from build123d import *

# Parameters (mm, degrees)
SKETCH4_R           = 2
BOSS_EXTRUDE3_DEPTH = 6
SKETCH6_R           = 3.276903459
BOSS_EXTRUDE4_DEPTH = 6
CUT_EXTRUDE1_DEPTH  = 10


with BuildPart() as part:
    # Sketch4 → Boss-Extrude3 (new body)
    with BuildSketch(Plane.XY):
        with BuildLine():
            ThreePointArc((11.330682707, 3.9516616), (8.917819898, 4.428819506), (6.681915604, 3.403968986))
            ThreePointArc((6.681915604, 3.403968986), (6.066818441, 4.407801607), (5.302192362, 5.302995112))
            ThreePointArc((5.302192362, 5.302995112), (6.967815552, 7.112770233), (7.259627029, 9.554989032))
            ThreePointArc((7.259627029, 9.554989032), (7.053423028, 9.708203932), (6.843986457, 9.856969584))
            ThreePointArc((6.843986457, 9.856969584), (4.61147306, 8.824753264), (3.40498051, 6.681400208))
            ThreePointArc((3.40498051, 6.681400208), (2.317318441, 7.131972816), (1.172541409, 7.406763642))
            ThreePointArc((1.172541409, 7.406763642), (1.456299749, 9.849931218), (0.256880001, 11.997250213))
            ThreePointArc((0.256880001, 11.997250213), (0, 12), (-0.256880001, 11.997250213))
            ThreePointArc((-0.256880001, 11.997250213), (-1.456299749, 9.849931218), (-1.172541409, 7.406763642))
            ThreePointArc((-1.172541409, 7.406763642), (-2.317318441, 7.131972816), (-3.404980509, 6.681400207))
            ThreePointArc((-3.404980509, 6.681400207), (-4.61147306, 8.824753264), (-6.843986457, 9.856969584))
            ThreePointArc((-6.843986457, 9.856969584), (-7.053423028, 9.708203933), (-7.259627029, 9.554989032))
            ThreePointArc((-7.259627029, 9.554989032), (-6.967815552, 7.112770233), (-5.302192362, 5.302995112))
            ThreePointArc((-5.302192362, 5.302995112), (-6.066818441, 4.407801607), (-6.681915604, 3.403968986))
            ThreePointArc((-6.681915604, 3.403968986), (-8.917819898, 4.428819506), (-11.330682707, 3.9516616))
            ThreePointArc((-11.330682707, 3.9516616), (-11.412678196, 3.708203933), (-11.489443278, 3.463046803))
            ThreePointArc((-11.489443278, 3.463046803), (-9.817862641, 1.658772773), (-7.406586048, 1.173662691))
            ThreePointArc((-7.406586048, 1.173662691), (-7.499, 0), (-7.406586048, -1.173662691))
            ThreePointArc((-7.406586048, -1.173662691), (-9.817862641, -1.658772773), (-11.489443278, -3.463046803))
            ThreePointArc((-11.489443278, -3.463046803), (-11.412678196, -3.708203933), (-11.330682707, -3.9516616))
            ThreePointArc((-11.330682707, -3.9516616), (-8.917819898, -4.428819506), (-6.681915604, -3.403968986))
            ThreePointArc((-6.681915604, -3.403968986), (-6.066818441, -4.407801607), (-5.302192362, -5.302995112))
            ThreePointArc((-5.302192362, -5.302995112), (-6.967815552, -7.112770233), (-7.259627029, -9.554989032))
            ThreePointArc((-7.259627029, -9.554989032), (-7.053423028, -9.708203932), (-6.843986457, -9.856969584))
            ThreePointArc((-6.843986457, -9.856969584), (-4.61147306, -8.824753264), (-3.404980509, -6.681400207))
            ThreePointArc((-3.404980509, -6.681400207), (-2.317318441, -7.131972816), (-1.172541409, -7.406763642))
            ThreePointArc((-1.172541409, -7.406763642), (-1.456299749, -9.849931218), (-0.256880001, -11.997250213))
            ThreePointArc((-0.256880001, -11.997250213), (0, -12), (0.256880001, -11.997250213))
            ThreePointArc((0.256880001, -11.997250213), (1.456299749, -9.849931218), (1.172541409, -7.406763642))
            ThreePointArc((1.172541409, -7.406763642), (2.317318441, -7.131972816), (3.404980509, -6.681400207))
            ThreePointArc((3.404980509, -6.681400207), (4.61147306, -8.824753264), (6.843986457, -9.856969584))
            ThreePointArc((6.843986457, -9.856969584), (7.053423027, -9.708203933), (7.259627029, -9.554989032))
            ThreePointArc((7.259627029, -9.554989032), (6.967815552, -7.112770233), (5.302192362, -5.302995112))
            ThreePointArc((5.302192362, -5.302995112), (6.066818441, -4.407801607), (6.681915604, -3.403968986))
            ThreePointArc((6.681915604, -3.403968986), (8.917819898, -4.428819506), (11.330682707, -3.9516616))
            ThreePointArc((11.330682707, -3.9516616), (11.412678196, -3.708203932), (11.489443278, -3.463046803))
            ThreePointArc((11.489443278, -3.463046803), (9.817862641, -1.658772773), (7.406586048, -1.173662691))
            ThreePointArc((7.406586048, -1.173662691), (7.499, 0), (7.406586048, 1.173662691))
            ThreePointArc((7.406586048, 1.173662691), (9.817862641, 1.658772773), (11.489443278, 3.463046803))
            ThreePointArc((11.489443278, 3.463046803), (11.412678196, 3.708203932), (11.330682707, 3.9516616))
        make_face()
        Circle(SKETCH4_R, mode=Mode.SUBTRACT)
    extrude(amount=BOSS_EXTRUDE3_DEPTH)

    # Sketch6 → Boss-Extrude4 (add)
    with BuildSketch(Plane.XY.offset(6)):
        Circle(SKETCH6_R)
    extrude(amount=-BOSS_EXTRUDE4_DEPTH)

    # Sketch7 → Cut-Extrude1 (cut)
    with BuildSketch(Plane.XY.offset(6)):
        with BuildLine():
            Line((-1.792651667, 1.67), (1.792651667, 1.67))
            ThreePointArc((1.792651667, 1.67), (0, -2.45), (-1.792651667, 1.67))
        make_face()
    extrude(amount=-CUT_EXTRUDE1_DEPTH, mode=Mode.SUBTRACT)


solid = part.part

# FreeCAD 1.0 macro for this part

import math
import FreeCAD as App
import Part
import Sketcher

V = App.Vector

doc = App.newDocument("Part")
body = doc.addObject("PartDesign::Body", "Body")

# Sketch on XY plane
sketch1 = doc.addObject("Sketcher::SketchObject", "Sketch")
body.addObject(sketch1)
sketch1.AttachmentSupport = (doc.XY_Plane, [""])
sketch1.MapMode = "FlatFace"
sketch1.addGeometry(Part.ArcOfCircle(Part.Circle(V(9.4, 0.5, 0), V(0, 0, 1), 4), math.radians(61), math.radians(133)), False)
sketch1.addGeometry(Part.ArcOfCircle(Part.Circle(V(0, 0, 0), V(0, 0, 1), 7.5), math.radians(27), math.radians(45)), False)
sketch1.addGeometry(Part.ArcOfCircle(Part.Circle(V(3.3, 8.8, 0), V(0, 0, 1), 4), math.radians(-61), math.radians(11)), False)
sketch1.addGeometry(Part.ArcOfCircle(Part.Circle(V(0, 0, 0), V(0, 0, 1), 12), math.radians(52.77), math.radians(55.23)), False)
sketch1.addGeometry(Part.ArcOfCircle(Part.Circle(V(7.3, 5.9, 0), V(0, 0, 1), 4), math.radians(97), math.radians(169)), False)
sketch1.addGeometry(Part.ArcOfCircle(Part.Circle(V(0, 0, 0), V(0, 0, 1), 7.5), math.radians(63), math.radians(81)), False)
sketch1.addGeometry(Part.ArcOfCircle(Part.Circle(V(-2.5, 9.1, 0), V(0, 0, 1), 4), math.radians(-25), math.radians(47)), False)
sketch1.addGeometry(Part.ArcOfCircle(Part.Circle(V(0, 0, 0), V(0, 0, 1), 12), math.radians(88.77), math.radians(91.23)), False)
sketch1.addGeometry(Part.ArcOfCircle(Part.Circle(V(2.5, 9.1, 0), V(0, 0, 1), 4), math.radians(133), math.radians(205)), False)
sketch1.addGeometry(Part.ArcOfCircle(Part.Circle(V(0, 0, 0), V(0, 0, 1), 7.5), math.radians(99), math.radians(117)), False)
sketch1.addGeometry(Part.ArcOfCircle(Part.Circle(V(-7.3, 5.9, 0), V(0, 0, 1), 4), math.radians(11), math.radians(83)), False)
sketch1.addGeometry(Part.ArcOfCircle(Part.Circle(V(0, 0, 0), V(0, 0, 1), 12), math.radians(124.77), math.radians(127.23)), False)
sketch1.addGeometry(Part.ArcOfCircle(Part.Circle(V(-3.3, 8.8, 0), V(0, 0, 1), 4), math.radians(169), math.radians(241)), False)
sketch1.addGeometry(Part.ArcOfCircle(Part.Circle(V(0, 0, 0), V(0, 0, 1), 7.5), math.radians(135), math.radians(153)), False)
sketch1.addGeometry(Part.ArcOfCircle(Part.Circle(V(-9.4, 0.5, 0), V(0, 0, 1), 4), math.radians(47), math.radians(119)), False)
sketch1.addGeometry(Part.ArcOfCircle(Part.Circle(V(0, 0, 0), V(0, 0, 1), 12), math.radians(160.77), math.radians(163.23)), False)
sketch1.addGeometry(Part.ArcOfCircle(Part.Circle(V(-7.9, 5.1, 0), V(0, 0, 1), 4), math.radians(-155), math.radians(-83)), False)
sketch1.addGeometry(Part.ArcOfCircle(Part.Circle(V(0, 0, 0), V(0, 0, 1), 7.5), math.radians(171), math.radians(189)), False)
sketch1.addGeometry(Part.ArcOfCircle(Part.Circle(V(-7.9, -5.1, 0), V(0, 0, 1), 4), math.radians(83), math.radians(155)), False)
sketch1.addGeometry(Part.ArcOfCircle(Part.Circle(V(0, 0, 0), V(0, 0, 1), 12), math.radians(-163.23), math.radians(-160.77)), False)
sketch1.addGeometry(Part.ArcOfCircle(Part.Circle(V(-9.4, -0.5, 0), V(0, 0, 1), 4), math.radians(-119), math.radians(-47)), False)
sketch1.addGeometry(Part.ArcOfCircle(Part.Circle(V(0, 0, 0), V(0, 0, 1), 7.5), math.radians(-153), math.radians(-135)), False)
sketch1.addGeometry(Part.ArcOfCircle(Part.Circle(V(-3.3, -8.8, 0), V(0, 0, 1), 4), math.radians(119), math.radians(191)), False)
sketch1.addGeometry(Part.ArcOfCircle(Part.Circle(V(0, 0, 0), V(0, 0, 1), 12), math.radians(-127.23), math.radians(-124.77)), False)
sketch1.addGeometry(Part.ArcOfCircle(Part.Circle(V(-7.3, -5.9, 0), V(0, 0, 1), 4), math.radians(-83), math.radians(-11)), False)
sketch1.addGeometry(Part.ArcOfCircle(Part.Circle(V(0, 0, 0), V(0, 0, 1), 7.5), math.radians(-117), math.radians(-99)), False)
sketch1.addGeometry(Part.ArcOfCircle(Part.Circle(V(2.5, -9.1, 0), V(0, 0, 1), 4), math.radians(155), math.radians(227)), False)
sketch1.addGeometry(Part.ArcOfCircle(Part.Circle(V(0, 0, 0), V(0, 0, 1), 12), math.radians(-91.23), math.radians(-88.77)), False)
sketch1.addGeometry(Part.ArcOfCircle(Part.Circle(V(-2.5, -9.1, 0), V(0, 0, 1), 4), math.radians(-47), math.radians(25)), False)
sketch1.addGeometry(Part.ArcOfCircle(Part.Circle(V(0, 0, 0), V(0, 0, 1), 7.5), math.radians(-81), math.radians(-63)), False)
sketch1.addGeometry(Part.ArcOfCircle(Part.Circle(V(7.3, -5.9, 0), V(0, 0, 1), 4), math.radians(-169), math.radians(-97)), False)
sketch1.addGeometry(Part.ArcOfCircle(Part.Circle(V(0, 0, 0), V(0, 0, 1), 12), math.radians(-55.23), math.radians(-52.77)), False)
sketch1.addGeometry(Part.ArcOfCircle(Part.Circle(V(3.3, -8.8, 0), V(0, 0, 1), 4), math.radians(-11), math.radians(61)), False)
sketch1.addGeometry(Part.ArcOfCircle(Part.Circle(V(0, 0, 0), V(0, 0, 1), 7.5), math.radians(-45), math.radians(-27)), False)
sketch1.addGeometry(Part.ArcOfCircle(Part.Circle(V(9.4, -0.5, 0), V(0, 0, 1), 4), math.radians(-133), math.radians(-61)), False)
sketch1.addGeometry(Part.ArcOfCircle(Part.Circle(V(0, 0, 0), V(0, 0, 1), 12), math.radians(-19.23), math.radians(-16.77)), False)
sketch1.addGeometry(Part.ArcOfCircle(Part.Circle(V(7.9, -5.1, 0), V(0, 0, 1), 4), math.radians(25), math.radians(97)), False)
sketch1.addGeometry(Part.ArcOfCircle(Part.Circle(V(0, 0, 0), V(0, 0, 1), 7.5), math.radians(-9), math.radians(9)), False)
sketch1.addGeometry(Part.ArcOfCircle(Part.Circle(V(7.9, 5.1, 0), V(0, 0, 1), 4), math.radians(-97), math.radians(-25)), False)
sketch1.addGeometry(Part.ArcOfCircle(Part.Circle(V(0, 0, 0), V(0, 0, 1), 12), math.radians(16.77), math.radians(19.23)), False)
sketch1.addGeometry(Part.Circle(V(0, 0, 0), V(0, 0, 1), 2), False)
sketch1.addConstraint(Sketcher.Constraint("Coincident", 0, 2, 1, 1))
sketch1.addConstraint(Sketcher.Constraint("Coincident", 1, 2, 2, 1))
sketch1.addConstraint(Sketcher.Constraint("Coincident", 2, 2, 3, 1))
sketch1.addConstraint(Sketcher.Constraint("Coincident", 3, 2, 4, 1))
sketch1.addConstraint(Sketcher.Constraint("Coincident", 4, 2, 5, 1))
sketch1.addConstraint(Sketcher.Constraint("Coincident", 5, 2, 6, 1))
sketch1.addConstraint(Sketcher.Constraint("Coincident", 6, 2, 7, 1))
sketch1.addConstraint(Sketcher.Constraint("Coincident", 7, 2, 8, 1))
sketch1.addConstraint(Sketcher.Constraint("Coincident", 8, 2, 9, 1))
sketch1.addConstraint(Sketcher.Constraint("Coincident", 9, 2, 10, 1))
sketch1.addConstraint(Sketcher.Constraint("Coincident", 10, 2, 11, 1))
sketch1.addConstraint(Sketcher.Constraint("Coincident", 11, 2, 12, 1))
sketch1.addConstraint(Sketcher.Constraint("Coincident", 12, 2, 13, 1))
sketch1.addConstraint(Sketcher.Constraint("Coincident", 13, 2, 14, 1))
sketch1.addConstraint(Sketcher.Constraint("Coincident", 14, 2, 15, 1))
sketch1.addConstraint(Sketcher.Constraint("Coincident", 15, 2, 16, 1))
sketch1.addConstraint(Sketcher.Constraint("Coincident", 16, 2, 17, 1))
sketch1.addConstraint(Sketcher.Constraint("Coincident", 17, 2, 18, 1))
sketch1.addConstraint(Sketcher.Constraint("Coincident", 18, 2, 19, 1))
sketch1.addConstraint(Sketcher.Constraint("Coincident", 19, 2, 20, 1))
sketch1.addConstraint(Sketcher.Constraint("Coincident", 20, 2, 21, 1))
sketch1.addConstraint(Sketcher.Constraint("Coincident", 21, 2, 22, 1))
sketch1.addConstraint(Sketcher.Constraint("Coincident", 22, 2, 23, 1))
sketch1.addConstraint(Sketcher.Constraint("Coincident", 23, 2, 24, 1))
sketch1.addConstraint(Sketcher.Constraint("Coincident", 24, 2, 25, 1))
sketch1.addConstraint(Sketcher.Constraint("Coincident", 25, 2, 26, 1))
sketch1.addConstraint(Sketcher.Constraint("Coincident", 26, 2, 27, 1))
sketch1.addConstraint(Sketcher.Constraint("Coincident", 27, 2, 28, 1))
sketch1.addConstraint(Sketcher.Constraint("Coincident", 28, 2, 29, 1))
sketch1.addConstraint(Sketcher.Constraint("Coincident", 29, 2, 30, 1))
sketch1.addConstraint(Sketcher.Constraint("Coincident", 30, 2, 31, 1))
sketch1.addConstraint(Sketcher.Constraint("Coincident", 31, 2, 32, 1))
sketch1.addConstraint(Sketcher.Constraint("Coincident", 32, 2, 33, 1))
sketch1.addConstraint(Sketcher.Constraint("Coincident", 33, 2, 34, 1))
sketch1.addConstraint(Sketcher.Constraint("Coincident", 34, 2, 35, 1))
sketch1.addConstraint(Sketcher.Constraint("Coincident", 35, 2, 36, 1))
sketch1.addConstraint(Sketcher.Constraint("Coincident", 36, 2, 37, 1))
sketch1.addConstraint(Sketcher.Constraint("Coincident", 37, 2, 38, 1))
sketch1.addConstraint(Sketcher.Constraint("Coincident", 38, 2, 39, 1))
sketch1.addConstraint(Sketcher.Constraint("Coincident", 39, 2, 0, 1))
sketch1.addConstraint(Sketcher.Constraint("Coincident", 1, 3, -1, 1))
sketch1.addConstraint(Sketcher.Constraint("Coincident", 3, 3, -1, 1))
sketch1.addConstraint(Sketcher.Constraint("Coincident", 5, 3, -1, 1))
sketch1.addConstraint(Sketcher.Constraint("Coincident", 7, 3, -1, 1))
sketch1.addConstraint(Sketcher.Constraint("Coincident", 9, 3, -1, 1))
sketch1.addConstraint(Sketcher.Constraint("Coincident", 11, 3, -1, 1))
sketch1.addConstraint(Sketcher.Constraint("Coincident", 13, 3, -1, 1))
sketch1.addConstraint(Sketcher.Constraint("Coincident", 15, 3, -1, 1))
sketch1.addConstraint(Sketcher.Constraint("Coincident", 17, 3, -1, 1))
sketch1.addConstraint(Sketcher.Constraint("Coincident", 19, 3, -1, 1))
sketch1.addConstraint(Sketcher.Constraint("Coincident", 21, 3, -1, 1))
sketch1.addConstraint(Sketcher.Constraint("Coincident", 23, 3, -1, 1))
sketch1.addConstraint(Sketcher.Constraint("Coincident", 25, 3, -1, 1))
sketch1.addConstraint(Sketcher.Constraint("Coincident", 27, 3, -1, 1))
sketch1.addConstraint(Sketcher.Constraint("Coincident", 29, 3, -1, 1))
sketch1.addConstraint(Sketcher.Constraint("Coincident", 31, 3, -1, 1))
sketch1.addConstraint(Sketcher.Constraint("Coincident", 33, 3, -1, 1))
sketch1.addConstraint(Sketcher.Constraint("Coincident", 35, 3, -1, 1))
sketch1.addConstraint(Sketcher.Constraint("Coincident", 37, 3, -1, 1))
sketch1.addConstraint(Sketcher.Constraint("Coincident", 39, 3, -1, 1))
sketch1.addConstraint(Sketcher.Constraint("Coincident", 40, 3, -1, 1))
sketch1.addConstraint(Sketcher.Constraint("Equal", 0, 2))
sketch1.addConstraint(Sketcher.Constraint("Equal", 2, 4))
sketch1.addConstraint(Sketcher.Constraint("Equal", 1, 5))
sketch1.addConstraint(Sketcher.Constraint("Equal", 4, 6))
sketch1.addConstraint(Sketcher.Constraint("Equal", 3, 7))
sketch1.addConstraint(Sketcher.Constraint("Equal", 6, 8))
sketch1.addConstraint(Sketcher.Constraint("Equal", 5, 9))
sketch1.addConstraint(Sketcher.Constraint("Equal", 8, 10))
sketch1.addConstraint(Sketcher.Constraint("Equal", 10, 12))
sketch1.addConstraint(Sketcher.Constraint("Equal", 9, 13))
sketch1.addConstraint(Sketcher.Constraint("Equal", 12, 14))
sketch1.addConstraint(Sketcher.Constraint("Equal", 11, 15))
sketch1.addConstraint(Sketcher.Constraint("Equal", 14, 16))
sketch1.addConstraint(Sketcher.Constraint("Equal", 13, 17))
sketch1.addConstraint(Sketcher.Constraint("Equal", 16, 18))
sketch1.addConstraint(Sketcher.Constraint("Equal", 15, 19))
sketch1.addConstraint(Sketcher.Constraint("Equal", 18, 20))
sketch1.addConstraint(Sketcher.Constraint("Equal", 17, 21))
sketch1.addConstraint(Sketcher.Constraint("Equal", 20, 22))
sketch1.addConstraint(Sketcher.Constraint("Equal", 7, 23))
sketch1.addConstraint(Sketcher.Constraint("Equal", 22, 24))
sketch1.addConstraint(Sketcher.Constraint("Equal", 21, 25))
sketch1.addConstraint(Sketcher.Constraint("Equal", 24, 26))
sketch1.addConstraint(Sketcher.Constraint("Equal", 23, 27))
sketch1.addConstraint(Sketcher.Constraint("Equal", 26, 28))
sketch1.addConstraint(Sketcher.Constraint("Equal", 25, 29))
sketch1.addConstraint(Sketcher.Constraint("Equal", 28, 30))
sketch1.addConstraint(Sketcher.Constraint("Equal", 27, 31))
sketch1.addConstraint(Sketcher.Constraint("Equal", 30, 32))
sketch1.addConstraint(Sketcher.Constraint("Equal", 29, 33))
sketch1.addConstraint(Sketcher.Constraint("Equal", 32, 34))
sketch1.addConstraint(Sketcher.Constraint("Equal", 31, 35))
sketch1.addConstraint(Sketcher.Constraint("Equal", 34, 36))
sketch1.addConstraint(Sketcher.Constraint("Equal", 33, 37))
sketch1.addConstraint(Sketcher.Constraint("Equal", 36, 38))
sketch1.addConstraint(Sketcher.Constraint("Equal", 35, 39))
sketch1.addConstraint(Sketcher.Constraint("Symmetric", 0, 3, 20, 3, -1, 1))
sketch1.addConstraint(Sketcher.Constraint("Symmetric", 2, 3, 22, 3, -1, 1))
sketch1.addConstraint(Sketcher.Constraint("Symmetric", 4, 3, 24, 3, -1, 1))
sketch1.addConstraint(Sketcher.Constraint("Symmetric", 6, 3, 26, 3, -1, 1))
sketch1.addConstraint(Sketcher.Constraint("Symmetric", 8, 3, 28, 3, -1, 1))
sketch1.addConstraint(Sketcher.Constraint("Symmetric", 10, 3, 30, 3, -1, 1))
sketch1.addConstraint(Sketcher.Constraint("Symmetric", 12, 3, 32, 3, -1, 1))
sketch1.addConstraint(Sketcher.Constraint("Symmetric", 14, 3, 34, 3, -1, 1))
sketch1.addConstraint(Sketcher.Constraint("Symmetric", 16, 3, 36, 3, -1, 1))
sketch1.addConstraint(Sketcher.Constraint("Symmetric", 18, 3, 38, 3, -1, 1))
sketch1.addConstraint(Sketcher.Constraint("Symmetric", 6, 3, 8, 3, -2))
sketch1.addConstraint(Sketcher.Constraint("Symmetric", 4, 3, 10, 3, -2))
sketch1.addConstraint(Sketcher.Constraint("Symmetric", 2, 3, 12, 3, -2))
sketch1.addConstraint(Sketcher.Constraint("Symmetric", 0, 3, 14, 3, -2))
sketch1.addConstraint(Sketcher.Constraint("Symmetric", 18, 3, 36, 3, -2))
sketch1.addConstraint(Sketcher.Constraint("Horizontal", 3, 2, 10, 2))
sketch1.addConstraint(Sketcher.Constraint("Diameter", 40, 4.0))
sketch1.addConstraint(Sketcher.Constraint("Radius", 0, 4.0))
sketch1.addConstraint(Sketcher.Constraint("Radius", 3, 12.000001))
sketch1.addConstraint(Sketcher.Constraint("Radius", 1, 7.499))
sketch1.addConstraint(Sketcher.Constraint("DistanceY", -1, 1, 4, 2, 6.6814))
sketch1.addConstraint(Sketcher.Constraint("DistanceX", -1, 1, 0, 3, 9.385841))
sketch1.addConstraint(Sketcher.Constraint("DistanceY", -1, 1, 4, 3, 5.886009))
sketch1.addConstraint(Sketcher.Constraint("DistanceY", -1, 1, 6, 3, 9.067468))
sketch1.addConstraint(Sketcher.Constraint("DistanceX", 16, 3, -1, 1, 7.861508))
sketch1.addConstraint(Sketcher.Constraint("DistanceY", -1, 1, 16, 3, 5.147709))
sketch1.addConstraint(Sketcher.Constraint("DistanceY", -1, 1, 0, 2, 3.403969))
sketch1.addConstraint(Sketcher.Constraint("DistanceY", -1, 1, 2, 2, 9.554989))
sketch1.addConstraint(Sketcher.Constraint("DistanceX", -1, 1, 5, 2, 1.172541))
sketch1.addConstraint(Sketcher.Constraint("DistanceX", -1, 1, 2, 3, 3.334346))
pad1 = doc.addObject("PartDesign::Pad", "Pad")
body.addObject(pad1)
pad1.Profile = sketch1
pad1.Length = 6

# Sketch on XY plane
sketch2 = doc.addObject("Sketcher::SketchObject", "Sketch001")
body.addObject(sketch2)
sketch2.AttachmentSupport = (doc.XY_Plane, [""])
sketch2.MapMode = "FlatFace"
sketch2.AttachmentOffset = App.Placement(V(0, 0, 6), App.Rotation())
sketch2.addGeometry(Part.Circle(V(0, 0, 0), V(0, 0, 1), 3.3), False)
sketch2.addConstraint(Sketcher.Constraint("Coincident", 0, 3, -1, 1))
sketch2.addConstraint(Sketcher.Constraint("Diameter", 0, 6.553807))
pad2 = doc.addObject("PartDesign::Pad", "Pad001")
body.addObject(pad2)
pad2.Profile = sketch2
pad2.Length = 6
pad2.Reversed = True

# Sketch on XY plane
sketch3 = doc.addObject("Sketcher::SketchObject", "Sketch002")
body.addObject(sketch3)
sketch3.AttachmentSupport = (doc.XY_Plane, [""])
sketch3.MapMode = "FlatFace"
sketch3.AttachmentOffset = App.Placement(V(0, 0, 6), App.Rotation())
sketch3.addGeometry(Part.LineSegment(V(1.8, 1.7, 0), V(-1.8, 1.7, 0)), False)
sketch3.addGeometry(Part.ArcOfCircle(Part.Circle(V(0, 0, 0), V(0, 0, 1), 2.5), math.radians(137), math.radians(403)), False)
sketch3.addConstraint(Sketcher.Constraint("Coincident", 0, 1, 1, 2))
sketch3.addConstraint(Sketcher.Constraint("Coincident", 1, 1, 0, 2))
sketch3.addConstraint(Sketcher.Constraint("Horizontal", 0))
sketch3.addConstraint(Sketcher.Constraint("Coincident", 1, 3, -1, 1))
sketch3.addConstraint(Sketcher.Constraint("Radius", 1, 2.45))
sketch3.addConstraint(Sketcher.Constraint("DistanceY", -1, 1, 0, 1, 1.67))
pocket1 = doc.addObject("PartDesign::Pocket", "Pocket")
body.addObject(pocket1)
pocket1.Profile = sketch3
pocket1.Length = 10

doc.recompute()
